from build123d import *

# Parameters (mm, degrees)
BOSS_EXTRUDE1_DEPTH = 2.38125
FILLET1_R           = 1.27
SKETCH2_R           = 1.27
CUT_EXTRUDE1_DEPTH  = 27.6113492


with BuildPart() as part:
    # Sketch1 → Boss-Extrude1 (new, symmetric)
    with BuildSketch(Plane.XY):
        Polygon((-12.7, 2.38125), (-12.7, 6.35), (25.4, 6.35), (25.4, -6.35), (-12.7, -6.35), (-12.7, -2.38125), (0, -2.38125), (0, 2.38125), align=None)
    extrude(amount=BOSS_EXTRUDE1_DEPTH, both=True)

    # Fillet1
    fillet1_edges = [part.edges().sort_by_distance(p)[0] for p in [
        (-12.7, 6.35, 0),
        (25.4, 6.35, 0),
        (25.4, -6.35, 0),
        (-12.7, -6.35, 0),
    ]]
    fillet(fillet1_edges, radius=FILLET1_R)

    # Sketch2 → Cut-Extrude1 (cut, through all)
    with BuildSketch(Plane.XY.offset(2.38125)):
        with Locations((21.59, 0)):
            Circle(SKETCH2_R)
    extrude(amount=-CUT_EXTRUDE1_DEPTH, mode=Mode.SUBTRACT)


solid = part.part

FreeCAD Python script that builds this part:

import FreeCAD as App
import Part
import Sketcher
from FreeCAD import Vector
Q = App.Units.Quantity


def edges_at(feature, points):
    """Names of the edges that pass closest to the given points."""
    edges = feature.Shape.Edges
    near = lambda p: min(range(len(edges)), key=lambda i: edges[i].distToShape(Part.Vertex(*p))[0])
    return sorted({f"Edge{near(p) + 1}" for p in points})


def add_polygon(sketch, points):
    """Adds a closed chain of lines whose ends are joined by coincident constraints."""
    first, n = sketch.GeometryCount, len(points)
    for a, b in zip(points, points[1:] + points[:1]):
        sketch.addGeometry(Part.LineSegment(App.Vector(*a, 0), App.Vector(*b, 0)), False)
    for i in range(n):
        sketch.addConstraint(Sketcher.Constraint("Coincident", first + i, 2, first + (i + 1) % n, 1))

doc = App.newDocument("Part")
body = doc.addObject("PartDesign::Body", "Body")

sketch1 = body.newObject("Sketcher::SketchObject", "Sketch")
sketch1.AttachmentSupport = (doc.getObject("XY_Plane"), [""])
sketch1.MapMode = "FlatFace"
add_polygon(sketch1, [(-12.7, 6.35), (-12.7, 2.38125), (0, 2.38125), (0, -2.38125), (-12.7, -2.38125), (-12.7, -6.35), (25.4, -6.35), (25.4, 6.35)])
sketch1.addConstraint([
    Sketcher.Constraint("Vertical", 0),
    Sketcher.Constraint("Horizontal", 1),
    Sketcher.Constraint("Vertical", 2),
    Sketcher.Constraint("Horizontal", 3),
    Sketcher.Constraint("Vertical", 4),
    Sketcher.Constraint("Horizontal", 5),
    Sketcher.Constraint("Vertical", 6),
    Sketcher.Constraint("Horizontal", 7),
    Sketcher.Constraint("Symmetric", 1, 2, 2, 2, -1, 1),
    Sketcher.Constraint("Symmetric", 4, 2, 7, 2, -1),
    Sketcher.Constraint("Equal", 3, 6),
    Sketcher.Constraint("DistanceX", 1, 1, 1, 2, Q("0.5 in")),
    Sketcher.Constraint("DistanceX", 5, 1, 5, 2, Q("1.5 in")),
    Sketcher.Constraint("DistanceY", 0, 2, 0, 1, Q("0.15625 in")),
])
pad1 = body.newObject("PartDesign::Pad", "Pad")
pad1.Profile = sketch1
pad1.Length = Q("0.1875 in")
pad1.Midplane = True
doc.recompute()

fillet = body.newObject("PartDesign::Fillet", "Fillet")
fillet.Base = (pad1, edges_at(pad1, [
    (-12.7, 6.35, 0),
    (25.4, 6.35, 0),
    (25.4, -6.35, 0),
    (-12.7, -6.35, 0),
]))
fillet.Radius = Q("0.05 in")

sketch2 = body.newObject("Sketcher::SketchObject", "Sketch001")
sketch2.AttachmentSupport = (doc.getObject("XY_Plane"), [""])
sketch2.MapMode = "FlatFace"
sketch2.AttachmentOffset = App.Placement(Vector(0, 0, 0.09375 * 25.4), App.Rotation())
sketch2.addGeometry(Part.Circle(Vector(21.59, 0, 0), Vector(0, 0, 1), 1.27), False)
sketch2.addConstraint([
    Sketcher.Constraint("PointOnObject", 0, 3, -1),
    Sketcher.Constraint("Diameter", 0, Q("0.1 in")),
    Sketcher.Constraint("DistanceX", -1, 1, 0, 3, Q("0.85 in")),
])
pocket1 = body.newObject("PartDesign::Pocket", "Pocket")
pocket1.Profile = sketch2
pocket1.Type = "ThroughAll"

doc.recompute()
